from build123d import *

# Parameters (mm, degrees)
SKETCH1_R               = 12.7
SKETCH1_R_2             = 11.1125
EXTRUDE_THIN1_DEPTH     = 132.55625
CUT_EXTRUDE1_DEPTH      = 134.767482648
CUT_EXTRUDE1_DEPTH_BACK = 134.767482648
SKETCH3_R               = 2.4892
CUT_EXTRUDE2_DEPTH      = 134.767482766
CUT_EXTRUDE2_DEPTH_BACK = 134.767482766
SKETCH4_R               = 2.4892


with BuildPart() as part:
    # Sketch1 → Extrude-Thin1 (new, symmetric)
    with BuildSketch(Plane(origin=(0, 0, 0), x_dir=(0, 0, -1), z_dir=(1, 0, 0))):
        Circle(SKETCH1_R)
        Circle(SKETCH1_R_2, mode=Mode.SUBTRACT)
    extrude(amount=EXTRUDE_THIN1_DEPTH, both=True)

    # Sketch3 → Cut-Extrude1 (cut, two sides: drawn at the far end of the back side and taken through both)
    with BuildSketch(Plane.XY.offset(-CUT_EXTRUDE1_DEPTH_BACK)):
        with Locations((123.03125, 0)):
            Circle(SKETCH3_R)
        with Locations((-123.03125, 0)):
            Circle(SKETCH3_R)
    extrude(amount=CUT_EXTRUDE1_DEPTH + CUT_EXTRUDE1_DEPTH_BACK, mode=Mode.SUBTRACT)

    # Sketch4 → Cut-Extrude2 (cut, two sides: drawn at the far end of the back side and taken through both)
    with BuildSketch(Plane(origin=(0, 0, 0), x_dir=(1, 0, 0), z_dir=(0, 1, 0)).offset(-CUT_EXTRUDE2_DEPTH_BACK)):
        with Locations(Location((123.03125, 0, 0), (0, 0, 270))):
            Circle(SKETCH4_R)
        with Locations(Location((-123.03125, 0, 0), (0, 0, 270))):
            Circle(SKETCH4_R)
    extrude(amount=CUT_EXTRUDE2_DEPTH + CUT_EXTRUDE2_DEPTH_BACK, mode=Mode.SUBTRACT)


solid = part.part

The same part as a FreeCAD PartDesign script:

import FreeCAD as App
import Part
import Sketcher

V = App.Vector
Q = App.Units.Quantity

doc = App.newDocument("Part")
body = doc.addObject("PartDesign::Body", "Body")

# Sketch on YZ plane
sketch1 = doc.addObject("Sketcher::SketchObject", "Sketch")
body.addObject(sketch1)
sketch1.AttachmentSupport = (doc.YZ_Plane, [""])
sketch1.MapMode = "FlatFace"
sketch1.addGeometry([
    Part.Circle(V(0, 0, 0), V(0, 0, 1), 12.7),
    Part.Circle(V(0, 0, 0), V(0, 0, 1), 11.1125),
], False)
sketch1.addConstraint([
    Sketcher.Constraint("Coincident", 0, 3, -1, 1),
    Sketcher.Constraint("Coincident", 1, 3, -1, 1),
    Sketcher.Constraint("Diameter", 0, Q("1 in")),
    Sketcher.Constraint("Diameter", 1, Q("0.875 in")),
])
pad1 = doc.addObject("PartDesign::Pad", "Pad")
body.addObject(pad1)
pad1.Profile = sketch1
pad1.Length = Q("10.4375 in")
pad1.Midplane = True

# Sketch on XY plane
sketch2 = doc.addObject("Sketcher::SketchObject", "Sketch001")
body.addObject(sketch2)
sketch2.AttachmentSupport = (doc.XY_Plane, [""])
sketch2.MapMode = "FlatFace"
sketch2.addGeometry([
    Part.Circle(V(123.03125, 0, 0), V(0, 0, 1), 2.4892),
    Part.Circle(V(-123.03125, 0, 0), V(0, 0, 1), 2.4892),
], False)
sketch2.addConstraint([
    Sketcher.Constraint("Equal", 0, 1),
    Sketcher.Constraint("Symmetric", 0, 3, 1, 3, -1, 1),
    Sketcher.Constraint("PointOnObject", 0, 3, -1),
    Sketcher.Constraint("Diameter", 0, Q("0.196 in")),
    Sketcher.Constraint("DistanceX", -1, 1, 0, 3, Q("4.84375 in")),
])
pocket1 = doc.addObject("PartDesign::Pocket", "Pocket")
body.addObject(pocket1)
pocket1.Profile = sketch2
pocket1.Type = "ThroughAll"
pocket1.Midplane = True

# Sketch on XZ plane
sketch3 = doc.addObject("Sketcher::SketchObject", "Sketch002")
body.addObject(sketch3)
sketch3.AttachmentSupport = (doc.XZ_Plane, [""])
sketch3.MapMode = "FlatFace"
sketch3.addGeometry([
    Part.Circle(V(123.03125, 0, 0), V(0, 0, 1), 2.4892),
    Part.Circle(V(-123.03125, 0, 0), V(0, 0, 1), 2.4892),
], False)
sketch3.addConstraint([
    Sketcher.Constraint("Equal", 0, 1),
    Sketcher.Constraint("Symmetric", 0, 3, 1, 3, -1, 1),
    Sketcher.Constraint("PointOnObject", 0, 3, -1),
    Sketcher.Constraint("Diameter", 0, Q("0.196 in")),
    Sketcher.Constraint("DistanceX", -1, 1, 0, 3, Q("4.84375 in")),
])
pocket2 = doc.addObject("PartDesign::Pocket", "Pocket001")
body.addObject(pocket2)
pocket2.Profile = sketch3
pocket2.Type = "ThroughAll"
pocket2.Midplane = True

doc.recompute()
